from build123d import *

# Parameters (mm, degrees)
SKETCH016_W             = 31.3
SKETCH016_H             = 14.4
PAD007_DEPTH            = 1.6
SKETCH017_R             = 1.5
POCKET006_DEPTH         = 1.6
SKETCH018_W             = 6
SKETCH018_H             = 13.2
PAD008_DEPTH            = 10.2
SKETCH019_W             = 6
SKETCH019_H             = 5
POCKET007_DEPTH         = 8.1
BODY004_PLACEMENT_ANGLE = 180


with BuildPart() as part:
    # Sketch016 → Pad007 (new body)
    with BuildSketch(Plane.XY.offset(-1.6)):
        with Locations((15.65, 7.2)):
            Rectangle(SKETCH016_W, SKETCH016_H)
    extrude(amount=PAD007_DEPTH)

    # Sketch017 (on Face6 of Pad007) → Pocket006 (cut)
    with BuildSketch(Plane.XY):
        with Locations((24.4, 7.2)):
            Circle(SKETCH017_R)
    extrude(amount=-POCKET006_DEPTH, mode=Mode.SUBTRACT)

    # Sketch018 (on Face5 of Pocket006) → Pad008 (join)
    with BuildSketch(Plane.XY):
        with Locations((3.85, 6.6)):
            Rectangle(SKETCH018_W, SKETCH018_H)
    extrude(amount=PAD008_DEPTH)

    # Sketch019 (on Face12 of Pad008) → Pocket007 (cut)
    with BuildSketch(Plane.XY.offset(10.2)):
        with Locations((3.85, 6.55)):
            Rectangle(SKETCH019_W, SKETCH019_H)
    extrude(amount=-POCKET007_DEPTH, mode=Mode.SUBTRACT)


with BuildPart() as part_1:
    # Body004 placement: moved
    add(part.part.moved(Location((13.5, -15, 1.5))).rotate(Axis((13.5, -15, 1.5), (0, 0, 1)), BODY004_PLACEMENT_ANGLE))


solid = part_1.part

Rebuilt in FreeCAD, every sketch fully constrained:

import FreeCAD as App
import Part
import Sketcher
from FreeCAD import Vector

doc = App.newDocument("Part")
body = doc.addObject("PartDesign::Body", "Body")

# Sketch on XY plane
sketch1 = body.newObject("Sketcher::SketchObject", "Sketch")
sketch1.AttachmentSupport = (doc.getObject("XY_Plane"), [""])
sketch1.MapMode = "FlatFace"
sketch1.AttachmentOffset = App.Placement(Vector(0, 0, -1.6), App.Rotation())
sketch1.addGeometry(Part.LineSegment(Vector(0, 14, 0), Vector(0, 0, 0)), False)
sketch1.addGeometry(Part.LineSegment(Vector(0, 0, 0), Vector(31, 0, 0)), False)
sketch1.addGeometry(Part.LineSegment(Vector(31, 0, 0), Vector(31, 14, 0)), False)
sketch1.addGeometry(Part.LineSegment(Vector(31, 14, 0), Vector(0, 14, 0)), False)
sketch1.addConstraint(Sketcher.Constraint("Coincident", 0, 2, 1, 1))
sketch1.addConstraint(Sketcher.Constraint("Coincident", 1, 2, 2, 1))
sketch1.addConstraint(Sketcher.Constraint("Coincident", 2, 2, 3, 1))
sketch1.addConstraint(Sketcher.Constraint("Coincident", 3, 2, 0, 1))
sketch1.addConstraint(Sketcher.Constraint("Vertical", 0))
sketch1.addConstraint(Sketcher.Constraint("Horizontal", 1))
sketch1.addConstraint(Sketcher.Constraint("Vertical", 2))
sketch1.addConstraint(Sketcher.Constraint("Horizontal", 3))
sketch1.addConstraint(Sketcher.Constraint("Coincident", 0, 2, -1, 1))
sketch1.addConstraint(Sketcher.Constraint("DistanceX", 1, 1, 1, 2, 31.3))
sketch1.addConstraint(Sketcher.Constraint("DistanceY", 0, 2, 0, 1, 14.4))
pad1 = body.newObject("PartDesign::Pad", "Pad")
pad1.Profile = sketch1
pad1.Length = 1.6

# Sketch on XY plane
sketch2 = body.newObject("Sketcher::SketchObject", "Sketch001")
sketch2.AttachmentSupport = (doc.getObject("XY_Plane"), [""])
sketch2.MapMode = "FlatFace"
sketch2.addGeometry(Part.Circle(Vector(24.4, 7.2, 0), Vector(0, 0, 1), 1.5), False)
sketch2.addConstraint(Sketcher.Constraint("Diameter", 0, 3.0))
sketch2.addConstraint(Sketcher.Constraint("DistanceX", -1, 1, 0, 3, 24.4))
sketch2.addConstraint(Sketcher.Constraint("DistanceY", -1, 1, 0, 3, 7.2))
pocket1 = body.newObject("PartDesign::Pocket", "Pocket")
pocket1.Profile = sketch2
pocket1.Length = 1.6

# Sketch on XY plane
sketch3 = body.newObject("Sketcher::SketchObject", "Sketch002")
sketch3.AttachmentSupport = (doc.getObject("XY_Plane"), [""])
sketch3.MapMode = "FlatFace"
sketch3.addGeometry(Part.LineSegment(Vector(1, 13, 0), Vector(1, 0, 0)), False)
sketch3.addGeometry(Part.LineSegment(Vector(1, 0, 0), Vector(7, 0, 0)), False)
sketch3.addGeometry(Part.LineSegment(Vector(7, 0, 0), Vector(7, 13, 0)), False)
sketch3.addGeometry(Part.LineSegment(Vector(7, 13, 0), Vector(1, 13, 0)), False)
sketch3.addConstraint(Sketcher.Constraint("Coincident", 0, 2, 1, 1))
sketch3.addConstraint(Sketcher.Constraint("Coincident", 1, 2, 2, 1))
sketch3.addConstraint(Sketcher.Constraint("Coincident", 2, 2, 3, 1))
sketch3.addConstraint(Sketcher.Constraint("Coincident", 3, 2, 0, 1))
sketch3.addConstraint(Sketcher.Constraint("Vertical", 0))
sketch3.addConstraint(Sketcher.Constraint("Horizontal", 1))
sketch3.addConstraint(Sketcher.Constraint("Vertical", 2))
sketch3.addConstraint(Sketcher.Constraint("Horizontal", 3))
sketch3.addConstraint(Sketcher.Constraint("PointOnObject", 0, 2, -1))
sketch3.addConstraint(Sketcher.Constraint("DistanceX", 1, 1, 1, 2, 6.0))
sketch3.addConstraint(Sketcher.Constraint("DistanceY", 0, 2, 0, 1, 13.2))
sketch3.addConstraint(Sketcher.Constraint("DistanceX", -1, 1, 0, 2, 0.85))
pad2 = body.newObject("PartDesign::Pad", "Pad001")
pad2.Profile = sketch3
pad2.Length = 10.2

# Sketch on XY plane
sketch4 = body.newObject("Sketcher::SketchObject", "Sketch003")
sketch4.AttachmentSupport = (doc.getObject("XY_Plane"), [""])
sketch4.MapMode = "FlatFace"
sketch4.AttachmentOffset = App.Placement(Vector(0, 0, 10.2), App.Rotation())
sketch4.addGeometry(Part.LineSegment(Vector(1, 9, 0), Vector(1, 4, 0)), False)
sketch4.addGeometry(Part.LineSegment(Vector(1, 4, 0), Vector(7, 4, 0)), False)
sketch4.addGeometry(Part.LineSegment(Vector(7, 4, 0), Vector(7, 9, 0)), False)
sketch4.addGeometry(Part.LineSegment(Vector(7, 9, 0), Vector(1, 9, 0)), False)
sketch4.addConstraint(Sketcher.Constraint("Coincident", 0, 2, 1, 1))
sketch4.addConstraint(Sketcher.Constraint("Coincident", 1, 2, 2, 1))
sketch4.addConstraint(Sketcher.Constraint("Coincident", 2, 2, 3, 1))
sketch4.addConstraint(Sketcher.Constraint("Coincident", 3, 2, 0, 1))
sketch4.addConstraint(Sketcher.Constraint("Vertical", 0))
sketch4.addConstraint(Sketcher.Constraint("Horizontal", 1))
sketch4.addConstraint(Sketcher.Constraint("Vertical", 2))
sketch4.addConstraint(Sketcher.Constraint("Horizontal", 3))
sketch4.addConstraint(Sketcher.Constraint("DistanceX", 1, 1, 1, 2, 6.0))
sketch4.addConstraint(Sketcher.Constraint("DistanceY", 0, 2, 0, 1, 5.0))
sketch4.addConstraint(Sketcher.Constraint("DistanceX", -1, 1, 0, 2, 0.85))
sketch4.addConstraint(Sketcher.Constraint("DistanceY", -1, 1, 0, 2, 4.05))
pocket2 = body.newObject("PartDesign::Pocket", "Pocket001")
pocket2.Profile = sketch4
pocket2.Length = 8.1
body2 = doc.addObject("PartDesign::Body", "Body001")
doc.recompute()

body.Placement = App.Placement(Vector(13.5, -15, 1.5), App.Rotation(Vector(0, 0, 1), 180))
boolean = body2.newObject("PartDesign::Boolean", "Boolean")
boolean.Type = "Fuse"
boolean.addObjects([body])

doc.recompute()
